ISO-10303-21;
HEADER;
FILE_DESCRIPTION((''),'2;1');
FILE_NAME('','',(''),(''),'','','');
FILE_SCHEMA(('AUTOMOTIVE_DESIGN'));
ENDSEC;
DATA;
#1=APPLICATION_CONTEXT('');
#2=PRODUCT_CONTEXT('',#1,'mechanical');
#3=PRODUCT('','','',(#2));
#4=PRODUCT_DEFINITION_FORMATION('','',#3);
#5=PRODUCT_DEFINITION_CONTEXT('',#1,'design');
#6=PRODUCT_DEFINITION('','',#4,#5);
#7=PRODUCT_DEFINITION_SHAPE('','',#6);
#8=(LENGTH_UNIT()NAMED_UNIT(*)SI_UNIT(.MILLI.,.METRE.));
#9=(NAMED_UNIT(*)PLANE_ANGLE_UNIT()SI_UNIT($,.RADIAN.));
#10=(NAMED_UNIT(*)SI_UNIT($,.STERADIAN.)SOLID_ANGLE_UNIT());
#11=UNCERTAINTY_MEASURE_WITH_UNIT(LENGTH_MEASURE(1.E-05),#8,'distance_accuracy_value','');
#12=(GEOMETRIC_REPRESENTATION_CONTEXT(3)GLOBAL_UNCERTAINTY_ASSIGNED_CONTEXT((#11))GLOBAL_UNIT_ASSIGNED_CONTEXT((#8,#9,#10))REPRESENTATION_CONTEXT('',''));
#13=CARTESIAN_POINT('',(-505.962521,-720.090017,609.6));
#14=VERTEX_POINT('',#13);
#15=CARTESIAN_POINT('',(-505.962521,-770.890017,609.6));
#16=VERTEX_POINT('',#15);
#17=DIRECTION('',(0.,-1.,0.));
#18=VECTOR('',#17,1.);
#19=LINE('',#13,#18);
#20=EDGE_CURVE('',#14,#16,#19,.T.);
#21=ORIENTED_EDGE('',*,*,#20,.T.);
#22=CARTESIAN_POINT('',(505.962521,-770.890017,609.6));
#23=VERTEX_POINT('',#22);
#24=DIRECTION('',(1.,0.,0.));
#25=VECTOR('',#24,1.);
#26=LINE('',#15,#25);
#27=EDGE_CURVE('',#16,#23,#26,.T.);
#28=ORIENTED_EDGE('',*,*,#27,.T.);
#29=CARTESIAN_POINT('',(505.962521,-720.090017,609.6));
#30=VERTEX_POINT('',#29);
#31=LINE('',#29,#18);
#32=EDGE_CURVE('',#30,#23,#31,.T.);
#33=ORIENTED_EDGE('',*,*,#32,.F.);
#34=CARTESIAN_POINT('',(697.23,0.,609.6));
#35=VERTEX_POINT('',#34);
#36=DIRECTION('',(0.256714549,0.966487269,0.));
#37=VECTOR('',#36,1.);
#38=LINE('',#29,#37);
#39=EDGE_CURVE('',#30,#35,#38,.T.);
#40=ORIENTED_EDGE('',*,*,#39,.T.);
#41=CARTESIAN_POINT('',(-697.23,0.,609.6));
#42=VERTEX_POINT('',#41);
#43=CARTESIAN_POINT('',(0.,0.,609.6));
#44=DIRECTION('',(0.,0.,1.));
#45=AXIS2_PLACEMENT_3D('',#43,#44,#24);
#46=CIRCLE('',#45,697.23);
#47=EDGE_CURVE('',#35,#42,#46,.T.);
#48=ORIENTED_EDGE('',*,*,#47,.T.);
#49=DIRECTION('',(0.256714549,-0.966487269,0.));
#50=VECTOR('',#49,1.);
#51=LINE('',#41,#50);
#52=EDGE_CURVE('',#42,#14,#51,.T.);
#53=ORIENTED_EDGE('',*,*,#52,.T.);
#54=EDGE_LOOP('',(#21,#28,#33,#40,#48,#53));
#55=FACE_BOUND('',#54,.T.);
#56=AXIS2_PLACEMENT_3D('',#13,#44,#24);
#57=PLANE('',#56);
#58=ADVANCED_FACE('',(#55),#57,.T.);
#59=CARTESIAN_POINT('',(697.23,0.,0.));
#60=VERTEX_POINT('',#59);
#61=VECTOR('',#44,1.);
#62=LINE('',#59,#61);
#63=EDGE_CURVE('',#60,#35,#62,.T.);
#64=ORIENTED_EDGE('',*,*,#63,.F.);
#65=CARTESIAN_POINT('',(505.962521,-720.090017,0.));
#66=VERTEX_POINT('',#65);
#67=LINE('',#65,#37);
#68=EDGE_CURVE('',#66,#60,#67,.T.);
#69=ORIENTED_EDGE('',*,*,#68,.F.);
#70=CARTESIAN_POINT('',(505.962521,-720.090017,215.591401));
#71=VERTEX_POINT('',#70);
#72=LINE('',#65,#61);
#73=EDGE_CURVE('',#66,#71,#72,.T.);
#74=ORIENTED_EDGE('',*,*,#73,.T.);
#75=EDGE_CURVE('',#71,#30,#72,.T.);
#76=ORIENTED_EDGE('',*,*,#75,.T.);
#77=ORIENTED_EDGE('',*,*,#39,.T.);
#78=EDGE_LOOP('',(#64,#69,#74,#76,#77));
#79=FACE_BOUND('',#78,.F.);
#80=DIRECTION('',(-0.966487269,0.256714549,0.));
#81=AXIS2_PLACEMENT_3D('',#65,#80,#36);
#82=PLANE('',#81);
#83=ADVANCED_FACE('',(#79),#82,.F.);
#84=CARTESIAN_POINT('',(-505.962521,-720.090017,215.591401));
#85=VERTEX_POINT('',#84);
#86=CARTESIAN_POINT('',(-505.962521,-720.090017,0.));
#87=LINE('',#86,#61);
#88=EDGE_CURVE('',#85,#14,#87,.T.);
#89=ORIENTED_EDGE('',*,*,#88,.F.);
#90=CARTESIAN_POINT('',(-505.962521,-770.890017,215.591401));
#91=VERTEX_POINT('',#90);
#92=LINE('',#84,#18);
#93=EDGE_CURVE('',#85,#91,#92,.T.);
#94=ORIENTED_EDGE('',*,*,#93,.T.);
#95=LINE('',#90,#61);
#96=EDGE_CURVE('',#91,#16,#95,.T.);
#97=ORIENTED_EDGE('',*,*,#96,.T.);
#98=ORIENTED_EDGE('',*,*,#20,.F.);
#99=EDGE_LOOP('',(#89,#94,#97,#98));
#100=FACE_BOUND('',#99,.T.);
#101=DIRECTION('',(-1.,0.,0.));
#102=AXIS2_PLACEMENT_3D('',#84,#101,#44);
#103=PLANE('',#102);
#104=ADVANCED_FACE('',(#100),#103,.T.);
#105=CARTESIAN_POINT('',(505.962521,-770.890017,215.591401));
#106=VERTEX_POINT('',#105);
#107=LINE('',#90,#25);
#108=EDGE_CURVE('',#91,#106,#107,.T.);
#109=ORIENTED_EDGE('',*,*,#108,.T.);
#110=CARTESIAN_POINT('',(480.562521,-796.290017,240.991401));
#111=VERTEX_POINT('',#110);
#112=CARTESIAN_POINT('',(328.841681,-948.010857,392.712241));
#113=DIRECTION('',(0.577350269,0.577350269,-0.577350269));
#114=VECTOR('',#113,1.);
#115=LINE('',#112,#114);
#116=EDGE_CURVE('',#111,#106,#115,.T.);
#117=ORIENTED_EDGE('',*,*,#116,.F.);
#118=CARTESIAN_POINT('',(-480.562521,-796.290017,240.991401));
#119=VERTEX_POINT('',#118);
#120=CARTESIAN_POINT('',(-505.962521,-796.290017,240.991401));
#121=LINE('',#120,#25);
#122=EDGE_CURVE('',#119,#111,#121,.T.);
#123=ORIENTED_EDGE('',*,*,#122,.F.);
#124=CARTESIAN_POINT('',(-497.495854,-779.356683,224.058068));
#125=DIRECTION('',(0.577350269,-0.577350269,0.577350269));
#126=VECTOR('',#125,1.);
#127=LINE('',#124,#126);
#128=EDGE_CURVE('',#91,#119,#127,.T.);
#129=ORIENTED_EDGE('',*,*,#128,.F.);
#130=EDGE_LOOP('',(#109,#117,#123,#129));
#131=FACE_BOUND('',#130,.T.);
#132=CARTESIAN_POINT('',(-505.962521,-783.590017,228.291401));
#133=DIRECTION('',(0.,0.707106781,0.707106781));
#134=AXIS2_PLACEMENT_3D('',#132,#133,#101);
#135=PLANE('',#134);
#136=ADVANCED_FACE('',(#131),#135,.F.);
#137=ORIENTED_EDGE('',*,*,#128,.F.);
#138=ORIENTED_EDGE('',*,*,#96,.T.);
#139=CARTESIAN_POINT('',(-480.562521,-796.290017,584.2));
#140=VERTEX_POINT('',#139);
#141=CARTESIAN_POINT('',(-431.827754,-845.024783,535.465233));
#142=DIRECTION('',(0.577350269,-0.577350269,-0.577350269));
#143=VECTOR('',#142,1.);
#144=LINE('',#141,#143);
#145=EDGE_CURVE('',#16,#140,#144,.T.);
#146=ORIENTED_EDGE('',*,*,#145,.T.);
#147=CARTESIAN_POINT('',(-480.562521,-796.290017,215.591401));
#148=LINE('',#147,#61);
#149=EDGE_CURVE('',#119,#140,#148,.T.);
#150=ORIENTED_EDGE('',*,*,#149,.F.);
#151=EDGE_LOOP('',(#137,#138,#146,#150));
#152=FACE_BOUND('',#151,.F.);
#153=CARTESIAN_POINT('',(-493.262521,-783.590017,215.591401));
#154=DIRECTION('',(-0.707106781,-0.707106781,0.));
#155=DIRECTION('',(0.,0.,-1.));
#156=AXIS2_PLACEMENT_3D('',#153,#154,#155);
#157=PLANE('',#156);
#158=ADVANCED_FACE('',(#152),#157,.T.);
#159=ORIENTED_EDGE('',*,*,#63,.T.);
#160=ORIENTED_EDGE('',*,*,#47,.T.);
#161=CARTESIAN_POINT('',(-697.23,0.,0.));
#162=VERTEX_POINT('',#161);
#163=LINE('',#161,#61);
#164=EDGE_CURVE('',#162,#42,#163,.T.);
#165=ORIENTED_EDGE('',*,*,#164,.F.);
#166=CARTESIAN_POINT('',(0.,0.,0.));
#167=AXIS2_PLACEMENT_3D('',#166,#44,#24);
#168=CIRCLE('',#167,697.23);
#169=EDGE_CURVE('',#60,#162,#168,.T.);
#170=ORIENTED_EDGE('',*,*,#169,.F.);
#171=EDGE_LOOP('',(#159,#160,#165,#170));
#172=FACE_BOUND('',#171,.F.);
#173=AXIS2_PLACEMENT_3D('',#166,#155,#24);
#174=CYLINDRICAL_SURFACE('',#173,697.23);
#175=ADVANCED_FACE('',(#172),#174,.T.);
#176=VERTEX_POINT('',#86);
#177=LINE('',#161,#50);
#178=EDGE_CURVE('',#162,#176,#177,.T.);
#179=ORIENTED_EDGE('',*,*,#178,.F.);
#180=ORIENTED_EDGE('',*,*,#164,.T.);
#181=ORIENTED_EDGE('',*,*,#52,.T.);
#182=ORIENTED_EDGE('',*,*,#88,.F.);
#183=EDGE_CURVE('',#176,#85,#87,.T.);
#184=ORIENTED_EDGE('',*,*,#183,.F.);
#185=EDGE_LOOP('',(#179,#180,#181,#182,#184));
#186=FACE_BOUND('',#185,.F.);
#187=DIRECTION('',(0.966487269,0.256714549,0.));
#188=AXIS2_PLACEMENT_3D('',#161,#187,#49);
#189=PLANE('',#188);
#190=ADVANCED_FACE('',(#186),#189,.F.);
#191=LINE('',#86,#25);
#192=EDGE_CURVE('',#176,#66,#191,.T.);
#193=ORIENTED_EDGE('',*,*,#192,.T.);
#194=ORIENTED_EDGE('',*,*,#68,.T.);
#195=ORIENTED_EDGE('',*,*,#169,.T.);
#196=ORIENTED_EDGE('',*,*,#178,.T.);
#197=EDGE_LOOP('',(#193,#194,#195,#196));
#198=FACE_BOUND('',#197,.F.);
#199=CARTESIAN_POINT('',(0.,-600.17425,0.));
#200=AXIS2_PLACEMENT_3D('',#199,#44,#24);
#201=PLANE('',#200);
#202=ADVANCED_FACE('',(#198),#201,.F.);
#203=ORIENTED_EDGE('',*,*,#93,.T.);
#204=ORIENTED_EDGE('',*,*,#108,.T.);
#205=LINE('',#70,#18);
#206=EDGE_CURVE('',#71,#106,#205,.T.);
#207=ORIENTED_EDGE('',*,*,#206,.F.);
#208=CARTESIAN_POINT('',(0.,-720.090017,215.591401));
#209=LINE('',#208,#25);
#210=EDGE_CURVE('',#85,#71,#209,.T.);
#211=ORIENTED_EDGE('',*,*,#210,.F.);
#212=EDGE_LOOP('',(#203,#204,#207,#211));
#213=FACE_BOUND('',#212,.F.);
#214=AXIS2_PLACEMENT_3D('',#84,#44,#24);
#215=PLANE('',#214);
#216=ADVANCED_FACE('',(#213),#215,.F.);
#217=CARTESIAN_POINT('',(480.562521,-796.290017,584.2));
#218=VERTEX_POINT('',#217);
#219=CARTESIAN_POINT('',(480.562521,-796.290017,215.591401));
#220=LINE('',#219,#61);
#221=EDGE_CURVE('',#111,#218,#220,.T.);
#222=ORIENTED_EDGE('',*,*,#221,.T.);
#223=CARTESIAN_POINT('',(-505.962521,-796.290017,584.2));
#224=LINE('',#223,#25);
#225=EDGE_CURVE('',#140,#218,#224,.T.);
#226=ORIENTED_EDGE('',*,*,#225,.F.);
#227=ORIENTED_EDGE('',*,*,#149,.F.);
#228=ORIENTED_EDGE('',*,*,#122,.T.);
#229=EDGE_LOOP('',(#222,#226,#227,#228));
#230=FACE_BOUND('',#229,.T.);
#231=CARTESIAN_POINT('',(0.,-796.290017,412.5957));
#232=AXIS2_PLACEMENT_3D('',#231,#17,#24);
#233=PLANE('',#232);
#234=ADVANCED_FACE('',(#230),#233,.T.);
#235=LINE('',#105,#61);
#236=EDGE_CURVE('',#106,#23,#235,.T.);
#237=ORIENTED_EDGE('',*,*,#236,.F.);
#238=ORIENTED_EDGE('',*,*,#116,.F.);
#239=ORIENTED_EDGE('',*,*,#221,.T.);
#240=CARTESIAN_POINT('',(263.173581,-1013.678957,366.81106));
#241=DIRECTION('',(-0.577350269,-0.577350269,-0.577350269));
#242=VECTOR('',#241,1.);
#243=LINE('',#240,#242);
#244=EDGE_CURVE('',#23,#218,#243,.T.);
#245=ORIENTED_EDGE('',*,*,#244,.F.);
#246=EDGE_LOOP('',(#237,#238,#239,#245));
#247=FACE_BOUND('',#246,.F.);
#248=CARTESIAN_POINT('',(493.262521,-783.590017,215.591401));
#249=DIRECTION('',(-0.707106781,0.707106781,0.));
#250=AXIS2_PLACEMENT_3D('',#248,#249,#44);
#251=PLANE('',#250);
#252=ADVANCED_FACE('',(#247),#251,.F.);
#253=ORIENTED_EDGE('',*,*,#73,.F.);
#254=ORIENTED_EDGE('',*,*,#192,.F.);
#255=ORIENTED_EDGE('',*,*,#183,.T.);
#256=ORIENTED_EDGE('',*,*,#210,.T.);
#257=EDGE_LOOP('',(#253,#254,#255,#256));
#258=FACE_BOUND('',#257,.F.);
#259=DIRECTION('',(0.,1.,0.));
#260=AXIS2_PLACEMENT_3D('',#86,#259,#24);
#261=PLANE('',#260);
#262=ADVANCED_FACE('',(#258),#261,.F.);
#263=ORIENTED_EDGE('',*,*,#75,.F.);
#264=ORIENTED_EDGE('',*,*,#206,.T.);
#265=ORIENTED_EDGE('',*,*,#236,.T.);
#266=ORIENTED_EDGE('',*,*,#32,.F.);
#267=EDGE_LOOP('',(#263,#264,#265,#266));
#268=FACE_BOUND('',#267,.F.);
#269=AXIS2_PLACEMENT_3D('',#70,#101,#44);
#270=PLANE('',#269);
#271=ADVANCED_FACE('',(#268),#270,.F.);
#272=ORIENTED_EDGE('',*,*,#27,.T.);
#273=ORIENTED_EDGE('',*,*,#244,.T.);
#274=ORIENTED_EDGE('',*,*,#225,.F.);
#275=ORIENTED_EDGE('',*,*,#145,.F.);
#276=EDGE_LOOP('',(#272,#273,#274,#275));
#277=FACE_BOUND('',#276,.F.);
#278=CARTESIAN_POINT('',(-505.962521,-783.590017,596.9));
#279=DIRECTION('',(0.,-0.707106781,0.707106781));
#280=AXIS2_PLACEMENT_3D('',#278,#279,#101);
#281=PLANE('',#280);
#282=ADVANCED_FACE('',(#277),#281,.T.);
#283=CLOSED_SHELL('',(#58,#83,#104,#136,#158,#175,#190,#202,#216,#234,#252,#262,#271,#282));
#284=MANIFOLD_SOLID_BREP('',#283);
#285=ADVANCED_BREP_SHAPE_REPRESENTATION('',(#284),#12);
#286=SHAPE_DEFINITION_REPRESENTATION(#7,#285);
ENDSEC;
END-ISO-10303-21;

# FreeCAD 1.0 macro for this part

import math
import FreeCAD as App
import Part
import Sketcher
Q = App.Units.Quantity


def edges_at(feature, points):
    """Names of the edges that pass closest to the given points."""
    edges = feature.Shape.Edges
    near = lambda p: min(range(len(edges)), key=lambda i: edges[i].distToShape(Part.Vertex(*p))[0])
    return sorted({f"Edge{near(p) + 1}" for p in points})

doc = App.newDocument("Part")
body = doc.addObject("PartDesign::Body", "Body")

# Sketch on XY plane
sketch1 = body.newObject("Sketcher::SketchObject", "Sketch")
sketch1.AttachmentSupport = (doc.getObject("XY_Plane"), [""])
sketch1.MapMode = "FlatFace"
sketch1.addGeometry(Part.LineSegment(App.Vector(506, -720, 0), App.Vector(697, 0, 0)), False)
sketch1.addGeometry(Part.ArcOfCircle(Part.Circle(App.Vector(0, 0, 0), App.Vector(0, 0, 1), 697), math.radians(0), math.radians(180)), False)
sketch1.addGeometry(Part.LineSegment(App.Vector(-697, 0, 0), App.Vector(-506, -720, 0)), False)
sketch1.addGeometry(Part.LineSegment(App.Vector(-506, -720, 0), App.Vector(506, -720, 0)), False)
sketch1.addConstraint(Sketcher.Constraint("Coincident", 0, 2, 1, 1))
sketch1.addConstraint(Sketcher.Constraint("Coincident", 1, 2, 2, 1))
sketch1.addConstraint(Sketcher.Constraint("Coincident", 2, 2, 3, 1))
sketch1.addConstraint(Sketcher.Constraint("Coincident", 3, 2, 0, 1))
sketch1.addConstraint(Sketcher.Constraint("Horizontal", 3))
sketch1.addConstraint(Sketcher.Constraint("Coincident", 1, 3, -1, 1))
sketch1.addConstraint(Sketcher.Constraint("PointOnObject", 0, 2, -1))
sketch1.addConstraint(Sketcher.Constraint("Equal", 0, 2))
sketch1.addConstraint(Sketcher.Constraint("Radius", 1, Q("27.45 in")))
sketch1.addConstraint(Sketcher.Constraint("DistanceX", 3, 1, 3, 2, Q("1011.925042 mm")))
sketch1.addConstraint(Sketcher.Constraint("Distance", 0, Q("745.058978 mm")))
sketch1.addConstraint(Sketcher.Constraint("DistanceX", 2, 2, -1, 1, Q("505.962521 mm")))
pad1 = body.newObject("PartDesign::Pad", "Pad")
pad1.Profile = sketch1
pad1.Length = Q("24 in")

# Sketch on XZ plane
sketch2 = body.newObject("Sketcher::SketchObject", "Sketch001")
sketch2.AttachmentSupport = (doc.getObject("XZ_Plane"), [""])
sketch2.MapMode = "FlatFace"
sketch2.AttachmentOffset = App.Placement(App.Vector(0, 0, 720.090017), App.Rotation())
sketch2.addGeometry(Part.LineSegment(App.Vector(-506, 610, 0), App.Vector(-506, 216, 0)), False)
sketch2.addGeometry(Part.LineSegment(App.Vector(-506, 216, 0), App.Vector(506, 216, 0)), False)
sketch2.addGeometry(Part.LineSegment(App.Vector(506, 216, 0), App.Vector(506, 610, 0)), False)
sketch2.addGeometry(Part.LineSegment(App.Vector(506, 610, 0), App.Vector(-506, 610, 0)), False)
sketch2.addConstraint(Sketcher.Constraint("Coincident", 0, 2, 1, 1))
sketch2.addConstraint(Sketcher.Constraint("Coincident", 1, 2, 2, 1))
sketch2.addConstraint(Sketcher.Constraint("Coincident", 2, 2, 3, 1))
sketch2.addConstraint(Sketcher.Constraint("Coincident", 3, 2, 0, 1))
sketch2.addConstraint(Sketcher.Constraint("Vertical", 0))
sketch2.addConstraint(Sketcher.Constraint("Horizontal", 1))
sketch2.addConstraint(Sketcher.Constraint("Vertical", 2))
sketch2.addConstraint(Sketcher.Constraint("Horizontal", 3))
sketch2.addConstraint(Sketcher.Constraint("DistanceY", -1, 1, 2, 2, Q("24 in")))
sketch2.addConstraint(Sketcher.Constraint("DistanceY", 0, 2, 0, 1, Q("394.008599 mm")))
sketch2.addConstraint(Sketcher.Constraint("DistanceX", 1, 1, 1, 2, Q("1011.925042 mm")))
sketch2.addConstraint(Sketcher.Constraint("DistanceX", 0, 2, -1, 1, Q("505.962521 mm")))
pad2 = body.newObject("PartDesign::Pad", "Pad001")
pad2.Profile = sketch2
pad2.Length = Q("3 in")
doc.recompute()

chamfer = body.newObject("PartDesign::Chamfer", "Chamfer")
chamfer.Base = (pad2, edges_at(pad2, [
    (0, -796.29, 609.6),
    (505.963, -796.29, 412.596),
    (0, -796.29, 215.591),
    (-505.963, -796.29, 412.596),
]))
chamfer.Size = Q("1 in")

doc.recompute()
